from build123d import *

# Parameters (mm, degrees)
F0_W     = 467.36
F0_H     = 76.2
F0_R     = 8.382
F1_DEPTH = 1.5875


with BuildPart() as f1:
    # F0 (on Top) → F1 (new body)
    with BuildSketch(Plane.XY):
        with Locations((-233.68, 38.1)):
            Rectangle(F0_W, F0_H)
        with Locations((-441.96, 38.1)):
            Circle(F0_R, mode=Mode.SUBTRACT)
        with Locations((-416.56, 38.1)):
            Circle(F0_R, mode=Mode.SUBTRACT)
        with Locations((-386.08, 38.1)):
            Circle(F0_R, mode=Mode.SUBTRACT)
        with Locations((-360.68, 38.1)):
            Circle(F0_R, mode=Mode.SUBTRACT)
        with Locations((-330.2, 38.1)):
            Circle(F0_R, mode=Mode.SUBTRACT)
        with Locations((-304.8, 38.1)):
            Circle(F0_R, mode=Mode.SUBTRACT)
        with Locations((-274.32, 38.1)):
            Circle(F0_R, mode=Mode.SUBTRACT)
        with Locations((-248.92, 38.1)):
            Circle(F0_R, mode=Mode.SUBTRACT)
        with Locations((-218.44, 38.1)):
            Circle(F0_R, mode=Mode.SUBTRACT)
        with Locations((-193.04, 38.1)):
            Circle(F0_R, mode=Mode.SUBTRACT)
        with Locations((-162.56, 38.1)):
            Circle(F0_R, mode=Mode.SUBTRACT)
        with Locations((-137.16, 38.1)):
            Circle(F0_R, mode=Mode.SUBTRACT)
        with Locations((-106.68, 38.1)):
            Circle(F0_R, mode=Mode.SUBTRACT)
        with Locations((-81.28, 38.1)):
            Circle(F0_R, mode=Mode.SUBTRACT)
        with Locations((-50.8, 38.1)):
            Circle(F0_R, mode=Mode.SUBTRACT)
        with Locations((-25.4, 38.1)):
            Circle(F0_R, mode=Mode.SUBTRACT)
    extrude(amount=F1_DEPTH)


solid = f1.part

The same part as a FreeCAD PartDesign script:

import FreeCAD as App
import Part
import Sketcher

V = App.Vector
Q = App.Units.Quantity

doc = App.newDocument("Part")
params = doc.addObject("Spreadsheet::Sheet", "Params")
for row, (alias, value) in enumerate([
    ("sketch1_diameter", "0.66 in"),
    ("sketch1_height", "3 in"),
    ("sketch1_width", "18.4 in"),
    ("pad1_length", "0.0625 in"),
], start=1):
    params.set(f"A{row}", alias)
    params.set(f"B{row}", "=" + value)
    params.setAlias(f"B{row}", alias)

body = doc.addObject("PartDesign::Body", "Body")

# Sketch on XY plane
sketch1 = body.newObject("Sketcher::SketchObject", "Sketch")
sketch1.AttachmentSupport = (doc.getObject("XY_Plane"), [""])
sketch1.MapMode = "FlatFace"
sketch1.addGeometry([
    Part.LineSegment(V(-467, 76, 0), V(-467, 0, 0)),  # 0
    Part.LineSegment(V(-467, 0, 0), V(0, 0, 0)),  # 1
    Part.LineSegment(V(0, 0, 0), V(0, 76, 0)),  # 2
    Part.LineSegment(V(0, 76, 0), V(-467, 76, 0)),  # 3
    Part.Circle(V(-442, 38, 0), V(0, 0, 1), 8),  # 4
    Part.Circle(V(-417, 38, 0), V(0, 0, 1), 8),  # 5
    Part.Circle(V(-386, 38, 0), V(0, 0, 1), 8),  # 6
    Part.Circle(V(-361, 38, 0), V(0, 0, 1), 8),  # 7
    Part.Circle(V(-330, 38, 0), V(0, 0, 1), 8),  # 8
    Part.Circle(V(-305, 38, 0), V(0, 0, 1), 8),  # 9
    Part.Circle(V(-274, 38, 0), V(0, 0, 1), 8),  # 10
    Part.Circle(V(-249, 38, 0), V(0, 0, 1), 8),  # 11
    Part.Circle(V(-218, 38, 0), V(0, 0, 1), 8),  # 12
    Part.Circle(V(-193, 38, 0), V(0, 0, 1), 8),  # 13
    Part.Circle(V(-163, 38, 0), V(0, 0, 1), 8),  # 14
    Part.Circle(V(-137, 38, 0), V(0, 0, 1), 8),  # 15
    Part.Circle(V(-107, 38, 0), V(0, 0, 1), 8),  # 16
    Part.Circle(V(-81, 38, 0), V(0, 0, 1), 8),  # 17
    Part.Circle(V(-51, 38, 0), V(0, 0, 1), 8),  # 18
    Part.Circle(V(-25, 38, 0), V(0, 0, 1), 8),  # 19
], False)
sketch1.addConstraint([
    Sketcher.Constraint("Coincident", 0, 2, 1, 1),
    Sketcher.Constraint("Coincident", 1, 2, 2, 1),
    Sketcher.Constraint("Coincident", 2, 2, 3, 1),
    Sketcher.Constraint("Coincident", 3, 2, 0, 1),
    Sketcher.Constraint("Vertical", 0),
    Sketcher.Constraint("Horizontal", 1),
    Sketcher.Constraint("Vertical", 2),
    Sketcher.Constraint("Horizontal", 3),
    Sketcher.Constraint("Coincident", 1, 2, -1, 1),
    Sketcher.Constraint("Equal", 4, 5),
    Sketcher.Constraint("Equal", 5, 6),
    Sketcher.Constraint("Equal", 6, 7),
    Sketcher.Constraint("Equal", 7, 8),
    Sketcher.Constraint("Equal", 8, 9),
    Sketcher.Constraint("Equal", 9, 10),
    Sketcher.Constraint("Equal", 10, 11),
    Sketcher.Constraint("Equal", 11, 12),
    Sketcher.Constraint("Equal", 12, 13),
    Sketcher.Constraint("Equal", 13, 14),
    Sketcher.Constraint("Equal", 14, 15),
    Sketcher.Constraint("Equal", 15, 16),
    Sketcher.Constraint("Equal", 16, 17),
    Sketcher.Constraint("Equal", 17, 18),
    Sketcher.Constraint("Equal", 18, 19),
    Sketcher.Constraint("Horizontal", 4, 3, 5, 3),
    Sketcher.Constraint("Horizontal", 5, 3, 6, 3),
    Sketcher.Constraint("Horizontal", 6, 3, 7, 3),
    Sketcher.Constraint("Horizontal", 7, 3, 8, 3),
    Sketcher.Constraint("Horizontal", 8, 3, 9, 3),
    Sketcher.Constraint("Horizontal", 9, 3, 10, 3),
    Sketcher.Constraint("Horizontal", 10, 3, 11, 3),
    Sketcher.Constraint("Horizontal", 11, 3, 12, 3),
    Sketcher.Constraint("Horizontal", 12, 3, 13, 3),
    Sketcher.Constraint("Horizontal", 13, 3, 14, 3),
    Sketcher.Constraint("Horizontal", 14, 3, 15, 3),
    Sketcher.Constraint("Horizontal", 15, 3, 16, 3),
    Sketcher.Constraint("Horizontal", 16, 3, 17, 3),
    Sketcher.Constraint("Horizontal", 17, 3, 18, 3),
    Sketcher.Constraint("Horizontal", 18, 3, 19, 3),
    Sketcher.Constraint("Diameter", 4, Q("0.66 in")),
    Sketcher.Constraint("DistanceY", 0, 2, 0, 1, Q("3 in")),
    Sketcher.Constraint("DistanceX", 1, 1, 1, 2, Q("18.4 in")),
    Sketcher.Constraint("DistanceX", 8, 3, -1, 1, Q("13 in")),
    Sketcher.Constraint("DistanceX", 9, 3, -1, 1, Q("12 in")),
    Sketcher.Constraint("DistanceX", 18, 3, -1, 1, Q("2 in")),
    Sketcher.Constraint("DistanceX", 19, 3, -1, 1, Q("1 in")),
    Sketcher.Constraint("DistanceX", 4, 3, 5, 3, Q("1 in")),
    Sketcher.Constraint("DistanceX", 6, 3, 7, 3, Q("1 in")),
    Sketcher.Constraint("DistanceX", 10, 3, 11, 3, Q("1 in")),
    Sketcher.Constraint("DistanceX", 12, 3, 13, 3, Q("1 in")),
    Sketcher.Constraint("DistanceX", 14, 3, 15, 3, Q("1 in")),
    Sketcher.Constraint("DistanceX", 16, 3, 17, 3, Q("1 in")),
    Sketcher.Constraint("DistanceX", 0, 2, 4, 3, Q("1 in")),
    Sketcher.Constraint("DistanceY", -1, 1, 4, 3, Q("1.5 in")),
    Sketcher.Constraint("DistanceX", 6, 3, -1, 1, Q("15.2 in")),
    Sketcher.Constraint("DistanceX", 10, 3, -1, 1, Q("10.8 in")),
    Sketcher.Constraint("DistanceX", 12, 3, -1, 1, Q("8.6 in")),
    Sketcher.Constraint("DistanceX", 14, 3, -1, 1, Q("6.4 in")),
    Sketcher.Constraint("DistanceX", 16, 3, -1, 1, Q("4.2 in")),
])
sketch1.setExpression("Constraints[39]", "Params.sketch1_diameter")
sketch1.setExpression("Constraints[40]", "Params.sketch1_height")
sketch1.setExpression("Constraints[41]", "Params.sketch1_width")
pad1 = body.newObject("PartDesign::Pad", "Pad")
pad1.Profile = sketch1
pad1.setExpression("Length", "Params.pad1_length")

doc.recompute()
